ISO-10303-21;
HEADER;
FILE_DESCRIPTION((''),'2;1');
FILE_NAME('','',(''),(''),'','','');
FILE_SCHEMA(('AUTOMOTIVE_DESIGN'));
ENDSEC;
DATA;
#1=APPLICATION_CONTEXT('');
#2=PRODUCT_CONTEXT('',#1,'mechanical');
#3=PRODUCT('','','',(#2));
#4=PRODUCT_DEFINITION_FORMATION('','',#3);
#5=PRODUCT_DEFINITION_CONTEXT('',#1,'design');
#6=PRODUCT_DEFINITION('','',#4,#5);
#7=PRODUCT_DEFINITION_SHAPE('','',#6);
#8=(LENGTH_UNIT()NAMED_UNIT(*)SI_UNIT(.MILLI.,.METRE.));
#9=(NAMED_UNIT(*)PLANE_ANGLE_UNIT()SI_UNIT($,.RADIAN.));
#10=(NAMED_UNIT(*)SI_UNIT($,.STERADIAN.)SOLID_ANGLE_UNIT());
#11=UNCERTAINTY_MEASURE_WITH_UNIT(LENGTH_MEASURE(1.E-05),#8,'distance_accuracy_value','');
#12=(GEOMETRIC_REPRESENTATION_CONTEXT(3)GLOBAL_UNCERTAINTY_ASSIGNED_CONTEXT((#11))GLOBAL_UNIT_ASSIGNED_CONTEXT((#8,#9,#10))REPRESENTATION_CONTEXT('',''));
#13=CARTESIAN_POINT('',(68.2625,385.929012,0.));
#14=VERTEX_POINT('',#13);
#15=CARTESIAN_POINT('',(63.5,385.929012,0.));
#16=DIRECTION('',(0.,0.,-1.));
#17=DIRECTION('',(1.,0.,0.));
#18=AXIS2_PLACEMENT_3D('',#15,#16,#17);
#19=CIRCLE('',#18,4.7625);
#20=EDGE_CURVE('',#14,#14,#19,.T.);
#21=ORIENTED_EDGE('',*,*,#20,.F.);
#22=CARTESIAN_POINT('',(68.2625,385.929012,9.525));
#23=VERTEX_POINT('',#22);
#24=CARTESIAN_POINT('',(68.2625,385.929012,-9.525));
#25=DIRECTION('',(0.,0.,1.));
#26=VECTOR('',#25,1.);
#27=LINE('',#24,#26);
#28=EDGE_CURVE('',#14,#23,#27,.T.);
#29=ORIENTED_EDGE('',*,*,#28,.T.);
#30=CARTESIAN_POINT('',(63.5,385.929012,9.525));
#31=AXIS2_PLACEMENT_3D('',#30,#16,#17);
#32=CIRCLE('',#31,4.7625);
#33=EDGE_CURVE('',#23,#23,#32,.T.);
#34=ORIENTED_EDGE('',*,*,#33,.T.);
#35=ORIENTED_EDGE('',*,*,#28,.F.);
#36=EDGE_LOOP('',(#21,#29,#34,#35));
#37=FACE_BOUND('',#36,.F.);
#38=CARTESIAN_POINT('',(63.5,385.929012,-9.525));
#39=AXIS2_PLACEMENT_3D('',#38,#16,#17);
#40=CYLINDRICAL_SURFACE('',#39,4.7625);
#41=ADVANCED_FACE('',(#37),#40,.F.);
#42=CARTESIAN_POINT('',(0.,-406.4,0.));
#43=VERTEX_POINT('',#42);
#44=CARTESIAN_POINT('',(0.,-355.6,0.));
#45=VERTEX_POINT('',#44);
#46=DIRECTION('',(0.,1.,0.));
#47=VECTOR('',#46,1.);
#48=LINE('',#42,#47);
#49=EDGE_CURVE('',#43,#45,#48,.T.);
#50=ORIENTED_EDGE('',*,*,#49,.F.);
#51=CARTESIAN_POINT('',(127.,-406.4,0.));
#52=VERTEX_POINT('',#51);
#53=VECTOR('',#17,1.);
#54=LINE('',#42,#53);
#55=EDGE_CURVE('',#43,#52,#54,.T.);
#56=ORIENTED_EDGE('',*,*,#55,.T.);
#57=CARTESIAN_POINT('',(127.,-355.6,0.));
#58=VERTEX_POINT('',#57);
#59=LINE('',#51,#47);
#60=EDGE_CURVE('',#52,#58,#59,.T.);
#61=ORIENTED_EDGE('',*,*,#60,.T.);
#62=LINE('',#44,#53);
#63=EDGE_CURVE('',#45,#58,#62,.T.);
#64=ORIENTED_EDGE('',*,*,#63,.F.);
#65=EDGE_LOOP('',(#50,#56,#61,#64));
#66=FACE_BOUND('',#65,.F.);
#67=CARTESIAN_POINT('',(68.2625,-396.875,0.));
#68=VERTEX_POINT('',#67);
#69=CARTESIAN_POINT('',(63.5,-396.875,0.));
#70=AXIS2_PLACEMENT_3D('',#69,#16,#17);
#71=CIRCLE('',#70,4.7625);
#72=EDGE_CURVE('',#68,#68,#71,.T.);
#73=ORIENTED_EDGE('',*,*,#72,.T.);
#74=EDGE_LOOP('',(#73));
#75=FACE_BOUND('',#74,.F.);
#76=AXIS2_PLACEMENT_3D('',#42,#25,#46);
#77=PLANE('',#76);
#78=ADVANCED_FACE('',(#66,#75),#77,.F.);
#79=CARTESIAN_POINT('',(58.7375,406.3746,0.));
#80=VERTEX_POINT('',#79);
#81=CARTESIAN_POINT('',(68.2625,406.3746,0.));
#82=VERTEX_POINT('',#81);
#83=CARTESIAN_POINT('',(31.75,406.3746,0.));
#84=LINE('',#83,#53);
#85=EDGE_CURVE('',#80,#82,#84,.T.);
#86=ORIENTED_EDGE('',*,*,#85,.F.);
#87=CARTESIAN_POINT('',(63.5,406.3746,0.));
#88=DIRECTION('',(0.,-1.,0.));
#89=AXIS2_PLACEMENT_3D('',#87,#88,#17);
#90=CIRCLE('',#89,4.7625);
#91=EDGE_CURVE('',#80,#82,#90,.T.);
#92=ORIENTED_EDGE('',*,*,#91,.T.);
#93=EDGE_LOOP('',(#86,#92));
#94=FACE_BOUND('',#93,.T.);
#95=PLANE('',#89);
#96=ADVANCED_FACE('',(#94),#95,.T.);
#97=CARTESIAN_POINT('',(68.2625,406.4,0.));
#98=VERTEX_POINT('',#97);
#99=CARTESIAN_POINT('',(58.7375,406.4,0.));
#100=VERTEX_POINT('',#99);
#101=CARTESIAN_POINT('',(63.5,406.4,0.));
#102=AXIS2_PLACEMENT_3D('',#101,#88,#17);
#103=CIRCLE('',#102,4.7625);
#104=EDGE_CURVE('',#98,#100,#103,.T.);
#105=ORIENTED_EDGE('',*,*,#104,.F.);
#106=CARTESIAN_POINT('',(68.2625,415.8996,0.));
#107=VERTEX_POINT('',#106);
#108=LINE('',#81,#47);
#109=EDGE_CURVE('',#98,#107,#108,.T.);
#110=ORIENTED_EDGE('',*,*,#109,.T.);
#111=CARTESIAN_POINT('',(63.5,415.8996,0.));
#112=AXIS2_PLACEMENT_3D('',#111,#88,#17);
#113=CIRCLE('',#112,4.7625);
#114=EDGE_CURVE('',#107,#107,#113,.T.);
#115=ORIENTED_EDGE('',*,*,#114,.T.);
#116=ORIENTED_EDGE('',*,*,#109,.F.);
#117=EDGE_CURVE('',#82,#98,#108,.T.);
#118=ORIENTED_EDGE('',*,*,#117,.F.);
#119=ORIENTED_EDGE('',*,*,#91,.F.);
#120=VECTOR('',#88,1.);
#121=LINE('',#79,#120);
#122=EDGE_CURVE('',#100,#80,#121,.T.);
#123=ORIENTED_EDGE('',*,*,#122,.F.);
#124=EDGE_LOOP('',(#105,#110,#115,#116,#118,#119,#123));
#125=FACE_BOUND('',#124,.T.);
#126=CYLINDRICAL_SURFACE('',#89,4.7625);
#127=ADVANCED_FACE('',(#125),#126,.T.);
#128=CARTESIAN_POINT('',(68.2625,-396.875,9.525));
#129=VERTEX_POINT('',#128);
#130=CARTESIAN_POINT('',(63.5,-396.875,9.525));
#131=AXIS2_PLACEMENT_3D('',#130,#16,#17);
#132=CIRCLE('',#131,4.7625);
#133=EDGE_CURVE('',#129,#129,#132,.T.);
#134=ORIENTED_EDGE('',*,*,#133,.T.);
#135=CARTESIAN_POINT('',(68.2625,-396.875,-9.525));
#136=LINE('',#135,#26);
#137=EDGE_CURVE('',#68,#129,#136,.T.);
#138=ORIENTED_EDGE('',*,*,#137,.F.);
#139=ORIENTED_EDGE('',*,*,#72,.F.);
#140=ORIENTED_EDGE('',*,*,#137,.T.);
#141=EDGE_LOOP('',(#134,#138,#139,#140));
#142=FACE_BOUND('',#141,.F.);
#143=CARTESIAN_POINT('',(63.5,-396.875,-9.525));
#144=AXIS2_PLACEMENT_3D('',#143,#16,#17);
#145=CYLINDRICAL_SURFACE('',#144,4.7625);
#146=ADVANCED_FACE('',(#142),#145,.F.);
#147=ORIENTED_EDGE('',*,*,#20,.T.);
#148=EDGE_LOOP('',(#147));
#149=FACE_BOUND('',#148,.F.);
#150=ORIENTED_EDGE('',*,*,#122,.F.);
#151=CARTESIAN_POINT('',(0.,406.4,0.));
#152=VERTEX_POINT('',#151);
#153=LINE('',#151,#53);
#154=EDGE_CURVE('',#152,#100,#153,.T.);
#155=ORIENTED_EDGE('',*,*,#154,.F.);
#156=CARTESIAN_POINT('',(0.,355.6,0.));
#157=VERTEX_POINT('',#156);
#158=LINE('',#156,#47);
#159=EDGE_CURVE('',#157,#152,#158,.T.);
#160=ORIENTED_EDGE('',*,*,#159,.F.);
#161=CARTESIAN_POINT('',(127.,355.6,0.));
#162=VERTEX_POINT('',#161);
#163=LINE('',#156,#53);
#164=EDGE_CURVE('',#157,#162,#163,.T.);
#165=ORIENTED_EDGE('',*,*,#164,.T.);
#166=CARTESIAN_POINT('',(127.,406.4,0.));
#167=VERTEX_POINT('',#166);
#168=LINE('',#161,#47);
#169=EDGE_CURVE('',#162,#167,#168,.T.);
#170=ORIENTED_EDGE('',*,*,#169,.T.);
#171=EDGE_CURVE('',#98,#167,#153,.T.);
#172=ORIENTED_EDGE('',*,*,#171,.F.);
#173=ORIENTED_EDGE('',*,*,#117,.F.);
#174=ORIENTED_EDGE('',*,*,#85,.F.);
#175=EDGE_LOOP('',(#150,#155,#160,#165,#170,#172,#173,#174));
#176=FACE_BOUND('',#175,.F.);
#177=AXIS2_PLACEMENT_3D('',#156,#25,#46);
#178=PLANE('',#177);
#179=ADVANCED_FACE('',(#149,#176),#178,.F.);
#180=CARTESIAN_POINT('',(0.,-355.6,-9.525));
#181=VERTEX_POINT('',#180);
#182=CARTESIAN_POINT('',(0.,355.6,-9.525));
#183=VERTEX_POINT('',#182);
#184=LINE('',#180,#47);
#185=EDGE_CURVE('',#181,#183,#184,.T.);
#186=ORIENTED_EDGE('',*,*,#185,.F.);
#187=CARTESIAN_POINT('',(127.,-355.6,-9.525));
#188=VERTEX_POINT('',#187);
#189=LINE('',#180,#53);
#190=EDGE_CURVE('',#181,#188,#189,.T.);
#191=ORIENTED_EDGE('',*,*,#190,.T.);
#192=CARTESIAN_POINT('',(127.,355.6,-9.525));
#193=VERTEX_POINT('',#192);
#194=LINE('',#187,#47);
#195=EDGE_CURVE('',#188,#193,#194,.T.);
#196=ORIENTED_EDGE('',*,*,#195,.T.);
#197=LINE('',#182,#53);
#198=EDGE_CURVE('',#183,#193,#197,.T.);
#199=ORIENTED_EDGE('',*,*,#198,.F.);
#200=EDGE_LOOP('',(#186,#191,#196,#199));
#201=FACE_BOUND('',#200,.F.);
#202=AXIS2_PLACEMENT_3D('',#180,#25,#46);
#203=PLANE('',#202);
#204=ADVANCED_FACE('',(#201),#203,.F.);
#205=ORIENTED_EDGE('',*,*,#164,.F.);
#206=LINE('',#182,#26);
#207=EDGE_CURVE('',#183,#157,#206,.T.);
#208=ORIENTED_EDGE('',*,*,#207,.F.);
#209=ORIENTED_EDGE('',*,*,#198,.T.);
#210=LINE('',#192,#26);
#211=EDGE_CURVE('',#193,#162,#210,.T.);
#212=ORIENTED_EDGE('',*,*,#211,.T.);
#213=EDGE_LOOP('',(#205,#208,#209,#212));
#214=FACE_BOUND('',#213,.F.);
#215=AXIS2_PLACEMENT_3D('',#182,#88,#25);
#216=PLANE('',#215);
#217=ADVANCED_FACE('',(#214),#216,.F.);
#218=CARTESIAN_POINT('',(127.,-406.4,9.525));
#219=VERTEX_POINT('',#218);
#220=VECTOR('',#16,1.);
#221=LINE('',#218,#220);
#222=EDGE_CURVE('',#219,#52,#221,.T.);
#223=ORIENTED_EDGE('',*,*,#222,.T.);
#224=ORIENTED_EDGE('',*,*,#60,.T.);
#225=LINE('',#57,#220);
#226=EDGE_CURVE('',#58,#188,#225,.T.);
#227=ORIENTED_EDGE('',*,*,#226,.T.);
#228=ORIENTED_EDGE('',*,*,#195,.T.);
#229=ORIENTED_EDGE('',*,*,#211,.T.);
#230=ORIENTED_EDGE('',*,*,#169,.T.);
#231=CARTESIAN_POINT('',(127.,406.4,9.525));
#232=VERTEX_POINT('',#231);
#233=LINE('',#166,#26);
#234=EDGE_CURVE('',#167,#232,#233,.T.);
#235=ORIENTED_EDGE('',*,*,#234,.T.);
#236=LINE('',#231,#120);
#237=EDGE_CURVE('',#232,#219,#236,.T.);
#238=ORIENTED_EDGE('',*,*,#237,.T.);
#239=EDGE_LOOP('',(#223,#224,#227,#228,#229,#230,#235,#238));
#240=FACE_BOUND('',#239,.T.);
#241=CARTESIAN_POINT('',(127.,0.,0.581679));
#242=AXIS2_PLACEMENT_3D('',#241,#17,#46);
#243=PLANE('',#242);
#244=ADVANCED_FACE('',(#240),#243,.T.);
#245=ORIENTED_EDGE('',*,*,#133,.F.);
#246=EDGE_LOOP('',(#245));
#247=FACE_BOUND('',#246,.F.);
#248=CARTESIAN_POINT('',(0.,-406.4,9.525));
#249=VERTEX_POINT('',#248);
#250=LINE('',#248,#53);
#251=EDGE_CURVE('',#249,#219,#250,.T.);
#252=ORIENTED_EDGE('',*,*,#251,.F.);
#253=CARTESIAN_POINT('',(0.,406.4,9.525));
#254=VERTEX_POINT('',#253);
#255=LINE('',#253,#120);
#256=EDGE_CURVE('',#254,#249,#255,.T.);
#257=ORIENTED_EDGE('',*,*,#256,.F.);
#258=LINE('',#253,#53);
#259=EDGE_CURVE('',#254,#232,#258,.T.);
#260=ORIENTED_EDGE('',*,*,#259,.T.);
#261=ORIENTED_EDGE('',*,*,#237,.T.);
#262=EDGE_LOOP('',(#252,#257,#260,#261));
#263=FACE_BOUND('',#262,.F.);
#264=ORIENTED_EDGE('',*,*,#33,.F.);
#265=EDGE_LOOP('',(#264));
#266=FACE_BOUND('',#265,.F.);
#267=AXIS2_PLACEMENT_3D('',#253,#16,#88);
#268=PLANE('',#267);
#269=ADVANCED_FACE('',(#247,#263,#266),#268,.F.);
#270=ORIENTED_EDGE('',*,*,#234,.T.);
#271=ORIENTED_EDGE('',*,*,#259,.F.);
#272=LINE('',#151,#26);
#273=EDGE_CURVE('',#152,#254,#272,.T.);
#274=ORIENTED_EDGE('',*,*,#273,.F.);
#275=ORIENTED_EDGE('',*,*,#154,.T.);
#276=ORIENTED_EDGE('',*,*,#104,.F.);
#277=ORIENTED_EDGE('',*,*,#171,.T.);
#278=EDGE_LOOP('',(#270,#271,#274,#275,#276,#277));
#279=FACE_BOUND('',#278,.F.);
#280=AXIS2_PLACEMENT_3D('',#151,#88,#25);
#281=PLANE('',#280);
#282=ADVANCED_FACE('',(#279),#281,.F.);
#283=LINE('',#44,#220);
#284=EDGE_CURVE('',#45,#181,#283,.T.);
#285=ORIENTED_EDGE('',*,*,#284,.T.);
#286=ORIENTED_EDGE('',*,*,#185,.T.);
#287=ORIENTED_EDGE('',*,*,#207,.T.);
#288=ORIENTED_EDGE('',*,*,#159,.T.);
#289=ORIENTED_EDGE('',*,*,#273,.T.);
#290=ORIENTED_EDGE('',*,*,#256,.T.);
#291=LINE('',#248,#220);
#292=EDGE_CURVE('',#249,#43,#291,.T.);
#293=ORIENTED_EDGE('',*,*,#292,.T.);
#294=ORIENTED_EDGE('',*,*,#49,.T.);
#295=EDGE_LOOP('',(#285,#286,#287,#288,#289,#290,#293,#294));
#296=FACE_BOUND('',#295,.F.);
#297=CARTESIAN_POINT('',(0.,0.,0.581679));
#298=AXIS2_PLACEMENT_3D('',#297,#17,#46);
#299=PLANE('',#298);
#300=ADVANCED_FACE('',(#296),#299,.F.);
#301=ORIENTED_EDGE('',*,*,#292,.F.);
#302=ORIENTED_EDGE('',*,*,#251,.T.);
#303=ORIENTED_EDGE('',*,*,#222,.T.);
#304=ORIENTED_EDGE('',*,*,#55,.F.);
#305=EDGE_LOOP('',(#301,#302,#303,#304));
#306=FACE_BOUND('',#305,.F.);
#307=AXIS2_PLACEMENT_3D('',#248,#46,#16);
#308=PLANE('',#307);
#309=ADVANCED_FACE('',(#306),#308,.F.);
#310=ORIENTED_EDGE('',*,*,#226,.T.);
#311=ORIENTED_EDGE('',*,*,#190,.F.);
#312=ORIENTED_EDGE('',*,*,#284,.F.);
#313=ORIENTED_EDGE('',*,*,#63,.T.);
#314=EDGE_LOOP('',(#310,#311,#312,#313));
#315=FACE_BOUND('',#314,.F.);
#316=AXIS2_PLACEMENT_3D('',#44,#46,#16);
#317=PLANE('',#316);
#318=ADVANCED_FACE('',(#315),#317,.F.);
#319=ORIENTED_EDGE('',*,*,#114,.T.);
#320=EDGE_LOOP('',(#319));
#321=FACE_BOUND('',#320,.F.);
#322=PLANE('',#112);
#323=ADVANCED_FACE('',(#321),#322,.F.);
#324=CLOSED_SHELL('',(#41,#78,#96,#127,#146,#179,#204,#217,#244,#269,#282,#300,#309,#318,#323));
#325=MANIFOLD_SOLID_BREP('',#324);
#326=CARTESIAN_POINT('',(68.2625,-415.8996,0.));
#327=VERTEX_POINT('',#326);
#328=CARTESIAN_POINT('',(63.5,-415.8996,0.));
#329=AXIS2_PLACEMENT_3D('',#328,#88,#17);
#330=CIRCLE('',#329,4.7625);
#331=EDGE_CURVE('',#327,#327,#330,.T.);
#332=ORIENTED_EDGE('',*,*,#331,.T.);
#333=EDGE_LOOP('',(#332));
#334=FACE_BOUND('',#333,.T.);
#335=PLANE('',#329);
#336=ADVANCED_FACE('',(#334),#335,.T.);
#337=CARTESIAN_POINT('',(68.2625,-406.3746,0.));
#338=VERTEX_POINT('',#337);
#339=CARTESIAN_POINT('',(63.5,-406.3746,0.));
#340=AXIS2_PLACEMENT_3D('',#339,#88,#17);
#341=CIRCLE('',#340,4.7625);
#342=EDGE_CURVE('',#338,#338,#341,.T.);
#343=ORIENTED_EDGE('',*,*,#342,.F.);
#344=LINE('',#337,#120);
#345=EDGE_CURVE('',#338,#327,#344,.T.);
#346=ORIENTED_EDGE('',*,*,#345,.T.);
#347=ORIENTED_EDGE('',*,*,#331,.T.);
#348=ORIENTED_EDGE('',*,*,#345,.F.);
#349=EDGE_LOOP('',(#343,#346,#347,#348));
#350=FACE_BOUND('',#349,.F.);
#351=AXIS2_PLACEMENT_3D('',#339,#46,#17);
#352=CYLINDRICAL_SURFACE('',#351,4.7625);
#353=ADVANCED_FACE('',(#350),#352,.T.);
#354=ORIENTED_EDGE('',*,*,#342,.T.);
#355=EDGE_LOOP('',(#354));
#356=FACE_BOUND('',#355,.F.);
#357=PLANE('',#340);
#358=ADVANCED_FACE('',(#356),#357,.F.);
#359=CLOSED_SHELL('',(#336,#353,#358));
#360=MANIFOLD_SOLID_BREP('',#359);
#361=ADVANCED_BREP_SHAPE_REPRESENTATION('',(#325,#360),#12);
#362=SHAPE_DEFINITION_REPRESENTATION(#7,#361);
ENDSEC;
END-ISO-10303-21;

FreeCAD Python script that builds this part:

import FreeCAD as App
import Part
import Sketcher
from FreeCAD import Vector
Q = App.Units.Quantity

doc = App.newDocument("Part")
body = doc.addObject("PartDesign::Body", "Body")

sketch1 = body.newObject("Sketcher::SketchObject", "Sketch")
sketch1.AttachmentSupport = (doc.getObject("YZ_Plane"), [""])
sketch1.MapMode = "FlatFace"
sketch1.addGeometry([
    Part.LineSegment(Vector(-356, 0, 0), Vector(-356, -10, 0)),
    Part.LineSegment(Vector(-356, -10, 0), Vector(356, -10, 0)),
    Part.LineSegment(Vector(356, -10, 0), Vector(356, 0, 0)),
    Part.LineSegment(Vector(356, 0, 0), Vector(406, 0, 0)),
    Part.LineSegment(Vector(406, 0, 0), Vector(406, 10, 0)),
    Part.LineSegment(Vector(406, 10, 0), Vector(-406, 10, 0)),
    Part.LineSegment(Vector(-406, 10, 0), Vector(-406, 0, 0)),
    Part.LineSegment(Vector(-406, 0, 0), Vector(-356, 0, 0)),
], False)
sketch1.addConstraint([
    Sketcher.Constraint("Coincident", 0, 2, 1, 1),
    Sketcher.Constraint("Coincident", 1, 2, 2, 1),
    Sketcher.Constraint("Coincident", 2, 2, 3, 1),
    Sketcher.Constraint("Coincident", 3, 2, 4, 1),
    Sketcher.Constraint("Coincident", 4, 2, 5, 1),
    Sketcher.Constraint("Coincident", 5, 2, 6, 1),
    Sketcher.Constraint("Coincident", 6, 2, 7, 1),
    Sketcher.Constraint("Coincident", 7, 2, 0, 1),
    Sketcher.Constraint("Vertical", 0),
    Sketcher.Constraint("Horizontal", 1),
    Sketcher.Constraint("Vertical", 2),
    Sketcher.Constraint("Horizontal", 3),
    Sketcher.Constraint("Vertical", 4),
    Sketcher.Constraint("Horizontal", 5),
    Sketcher.Constraint("Vertical", 6),
    Sketcher.Constraint("Horizontal", 7),
    Sketcher.Constraint("Symmetric", 3, 2, 6, 2, -1, 1),
    Sketcher.Constraint("Symmetric", 2, 2, 7, 2, -2),
    Sketcher.Constraint("Equal", 2, 4),
    Sketcher.Constraint("DistanceX", 1, 1, 1, 2, Q("28 in")),
    Sketcher.Constraint("DistanceX", 3, 1, 3, 2, Q("2 in")),
    Sketcher.Constraint("DistanceY", 0, 2, 0, 1, Q("0.375 in")),
])
pad1 = body.newObject("PartDesign::Pad", "Pad")
pad1.Profile = sketch1
pad1.Length = Q("5 in")

sketch2 = body.newObject("Sketcher::SketchObject", "Sketch001")
sketch2.AttachmentSupport = (doc.getObject("XY_Plane"), [""])
sketch2.MapMode = "FlatFace"
sketch2.AttachmentOffset = App.Placement(Vector(0, 0, -0.375 * 25.4), App.Rotation())
sketch2.addGeometry([
    Part.Circle(Vector(63.5, 385.9, 0), Vector(0, 0, 1), 4.8),
    Part.Circle(Vector(63.5, -396.9, 0), Vector(0, 0, 1), 4.8),
], False)
sketch2.addConstraint([
    Sketcher.Constraint("Equal", 0, 1),
    Sketcher.Constraint("Vertical", 0, 3, 1, 3),
    Sketcher.Constraint("Diameter", 0, Q("0.375 in")),
    Sketcher.Constraint("DistanceX", -1, 1, 0, 3, Q("2.5 in")),
    Sketcher.Constraint("DistanceY", 1, 3, -1, 1, Q("15.625 in")),
    Sketcher.Constraint("DistanceY", -1, 1, 0, 3, Q("385.929012 mm")),
])
pocket1 = body.newObject("PartDesign::Pocket", "Pocket")
pocket1.Profile = sketch2
pocket1.Length = Q("1 in")
pocket1.Reversed = True

sketch3 = body.newObject("Sketcher::SketchObject", "Sketch002")
sketch3.AttachmentSupport = (doc.getObject("XZ_Plane"), [""])
sketch3.MapMode = "FlatFace"
sketch3.AttachmentOffset = App.Placement(Vector(0, 0, -15.999 * 25.4), App.Rotation())
sketch3.addGeometry(Part.Circle(Vector(63.5, 0, 0), Vector(0, 0, 1), 4.8), False)
sketch3.addConstraint([
    Sketcher.Constraint("PointOnObject", 0, 3, -1),
    Sketcher.Constraint("Diameter", 0, Q("0.375 in")),
    Sketcher.Constraint("DistanceX", -1, 1, 0, 3, Q("2.5 in")),
])
pad2 = body.newObject("PartDesign::Pad", "Pad001")
pad2.Profile = sketch3
pad2.Length = Q("0.375 in")
pad2.Reversed = True
body2 = doc.addObject("PartDesign::Body", "Body001")

sketch4 = body2.newObject("Sketcher::SketchObject", "Sketch003")
sketch4.AttachmentSupport = (doc.getObject("XZ_Plane001"), [""])
sketch4.MapMode = "FlatFace"
sketch4.AttachmentOffset = App.Placement(Vector(0, 0, 15.999 * 25.4), App.Rotation())
sketch4.addGeometry(Part.Circle(Vector(63.5, 0, 0), Vector(0, 0, 1), 4.8), False)
sketch4.addConstraint([
    Sketcher.Constraint("PointOnObject", 0, 3, -1),
    Sketcher.Constraint("Diameter", 0, Q("0.375 in")),
    Sketcher.Constraint("DistanceX", -1, 1, 0, 3, Q("2.5 in")),
])
pad3 = body2.newObject("PartDesign::Pad", "Pad002")
pad3.Profile = sketch4
pad3.Length = Q("0.375 in")

doc.recompute()
